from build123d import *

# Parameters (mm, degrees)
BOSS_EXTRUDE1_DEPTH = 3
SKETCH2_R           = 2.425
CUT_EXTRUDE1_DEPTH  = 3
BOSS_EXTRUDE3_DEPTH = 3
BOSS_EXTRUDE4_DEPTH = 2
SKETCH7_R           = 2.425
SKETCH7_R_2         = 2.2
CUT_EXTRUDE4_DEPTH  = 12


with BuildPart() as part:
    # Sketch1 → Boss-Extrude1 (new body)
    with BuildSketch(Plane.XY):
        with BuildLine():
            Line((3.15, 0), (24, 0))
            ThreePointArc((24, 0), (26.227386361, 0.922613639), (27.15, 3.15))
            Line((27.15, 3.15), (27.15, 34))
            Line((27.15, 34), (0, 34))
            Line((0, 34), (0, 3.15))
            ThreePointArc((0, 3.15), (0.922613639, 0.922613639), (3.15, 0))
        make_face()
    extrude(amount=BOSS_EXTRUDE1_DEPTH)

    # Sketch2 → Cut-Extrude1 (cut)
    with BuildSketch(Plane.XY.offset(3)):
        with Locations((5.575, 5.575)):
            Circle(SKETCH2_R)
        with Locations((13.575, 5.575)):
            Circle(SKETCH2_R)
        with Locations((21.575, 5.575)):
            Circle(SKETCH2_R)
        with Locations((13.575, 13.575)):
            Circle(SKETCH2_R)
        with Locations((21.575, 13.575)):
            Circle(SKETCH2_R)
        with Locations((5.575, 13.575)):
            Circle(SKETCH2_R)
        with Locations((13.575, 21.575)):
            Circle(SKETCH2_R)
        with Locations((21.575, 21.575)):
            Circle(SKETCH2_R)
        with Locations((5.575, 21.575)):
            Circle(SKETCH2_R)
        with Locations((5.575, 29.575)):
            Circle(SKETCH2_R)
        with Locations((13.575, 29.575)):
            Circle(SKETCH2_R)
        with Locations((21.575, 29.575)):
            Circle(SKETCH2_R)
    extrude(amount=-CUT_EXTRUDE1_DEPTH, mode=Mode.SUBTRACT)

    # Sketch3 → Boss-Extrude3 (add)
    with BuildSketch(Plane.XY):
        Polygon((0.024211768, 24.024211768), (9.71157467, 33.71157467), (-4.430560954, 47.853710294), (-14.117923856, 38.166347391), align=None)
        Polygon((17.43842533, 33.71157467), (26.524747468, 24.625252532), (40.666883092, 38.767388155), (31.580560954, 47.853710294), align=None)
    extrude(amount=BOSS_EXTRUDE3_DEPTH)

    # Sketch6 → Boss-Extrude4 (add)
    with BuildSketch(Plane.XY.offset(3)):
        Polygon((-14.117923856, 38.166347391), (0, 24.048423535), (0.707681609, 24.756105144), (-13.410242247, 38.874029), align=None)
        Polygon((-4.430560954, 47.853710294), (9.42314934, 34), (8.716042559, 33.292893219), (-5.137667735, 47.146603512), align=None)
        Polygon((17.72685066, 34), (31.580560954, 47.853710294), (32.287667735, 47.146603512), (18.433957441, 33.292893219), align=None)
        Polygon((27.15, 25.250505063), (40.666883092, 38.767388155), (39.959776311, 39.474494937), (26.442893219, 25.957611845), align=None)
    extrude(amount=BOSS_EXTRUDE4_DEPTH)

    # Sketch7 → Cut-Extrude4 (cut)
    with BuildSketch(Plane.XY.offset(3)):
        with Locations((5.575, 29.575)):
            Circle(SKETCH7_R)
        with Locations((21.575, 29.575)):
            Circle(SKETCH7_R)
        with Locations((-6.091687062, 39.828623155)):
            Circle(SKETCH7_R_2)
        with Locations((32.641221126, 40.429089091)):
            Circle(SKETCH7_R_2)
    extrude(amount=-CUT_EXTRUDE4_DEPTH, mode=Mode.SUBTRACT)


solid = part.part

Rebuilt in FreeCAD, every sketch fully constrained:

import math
import FreeCAD as App
import Part
import Sketcher

V = App.Vector


def add_polygon(sketch, points):
    """Adds a closed chain of lines whose ends are joined by coincident constraints."""
    first, n = sketch.GeometryCount, len(points)
    for a, b in zip(points, points[1:] + points[:1]):
        sketch.addGeometry(Part.LineSegment(App.Vector(*a, 0), App.Vector(*b, 0)), False)
    for i in range(n):
        sketch.addConstraint(Sketcher.Constraint("Coincident", first + i, 2, first + (i + 1) % n, 1))

doc = App.newDocument("Part")
body = doc.addObject("PartDesign::Body", "Body")

sketch1 = body.newObject("Sketcher::SketchObject", "Sketch")
sketch1.AttachmentSupport = (doc.getObject("XY_Plane"), [""])
sketch1.MapMode = "FlatFace"
sketch1.addGeometry([
    Part.LineSegment(V(3.1, 0, 0), V(24, 0, 0)),
    Part.ArcOfCircle(Part.Circle(V(24, 3.1, 0), V(0, 0, 1), 3.1), math.radians(-90), math.radians(0)),
    Part.LineSegment(V(27.1, 3.1, 0), V(27.1, 34, 0)),
    Part.LineSegment(V(27.1, 34, 0), V(0, 34, 0)),
    Part.LineSegment(V(0, 34, 0), V(0, 3.1, 0)),
    Part.ArcOfCircle(Part.Circle(V(3.1, 3.1, 0), V(0, 0, 1), 3.1), math.radians(180), math.radians(270)),
], False)
sketch1.addConstraint([
    Sketcher.Constraint("Tangent", 0, 2, 1, 1),
    Sketcher.Constraint("Tangent", 1, 2, 2, 1),
    Sketcher.Constraint("Coincident", 2, 2, 3, 1),
    Sketcher.Constraint("Coincident", 3, 2, 4, 1),
    Sketcher.Constraint("Tangent", 4, 2, 5, 1),
    Sketcher.Constraint("Tangent", 5, 2, 0, 1),
    Sketcher.Constraint("Horizontal", 0),
    Sketcher.Constraint("Vertical", 2),
    Sketcher.Constraint("Horizontal", 3),
    Sketcher.Constraint("Vertical", 4),
    Sketcher.Constraint("Equal", 1, 5),
    Sketcher.Constraint("PointOnObject", 0, 2, -1),
    Sketcher.Constraint("PointOnObject", 3, 2, -2),
    Sketcher.Constraint("Radius", 1, 3.15),
    Sketcher.Constraint("DistanceX", -1, 1, 1, 3, 24.0),
    Sketcher.Constraint("DistanceY", -1, 1, 2, 2, 34.0),
])
pad1 = body.newObject("PartDesign::Pad", "Pad")
pad1.Profile = sketch1
pad1.Length = 3

sketch2 = body.newObject("Sketcher::SketchObject", "Sketch001")
sketch2.AttachmentSupport = (doc.getObject("XY_Plane"), [""])
sketch2.MapMode = "FlatFace"
sketch2.AttachmentOffset = App.Placement(V(0, 0, 3), App.Rotation())
sketch2.addGeometry([
    Part.Circle(V(5.6, 5.6, 0), V(0, 0, 1), 2.4),
    Part.Circle(V(13.6, 5.6, 0), V(0, 0, 1), 2.4),
    Part.Circle(V(21.6, 5.6, 0), V(0, 0, 1), 2.4),
    Part.Circle(V(13.6, 13.6, 0), V(0, 0, 1), 2.4),
    Part.Circle(V(21.6, 13.6, 0), V(0, 0, 1), 2.4),
    Part.Circle(V(5.6, 13.6, 0), V(0, 0, 1), 2.4),
    Part.Circle(V(13.6, 21.6, 0), V(0, 0, 1), 2.4),
    Part.Circle(V(21.6, 21.6, 0), V(0, 0, 1), 2.4),
    Part.Circle(V(5.6, 21.6, 0), V(0, 0, 1), 2.4),
    Part.Circle(V(5.6, 29.6, 0), V(0, 0, 1), 2.4),
    Part.Circle(V(13.6, 29.6, 0), V(0, 0, 1), 2.4),
    Part.Circle(V(21.6, 29.6, 0), V(0, 0, 1), 2.4),
], False)
sketch2.addConstraint([
    Sketcher.Constraint("Equal", 0, 1),
    Sketcher.Constraint("Equal", 1, 2),
    Sketcher.Constraint("Equal", 2, 3),
    Sketcher.Constraint("Equal", 3, 4),
    Sketcher.Constraint("Equal", 4, 5),
    Sketcher.Constraint("Equal", 5, 6),
    Sketcher.Constraint("Equal", 6, 7),
    Sketcher.Constraint("Equal", 7, 8),
    Sketcher.Constraint("Equal", 8, 9),
    Sketcher.Constraint("Equal", 9, 10),
    Sketcher.Constraint("Equal", 10, 11),
    Sketcher.Constraint("Horizontal", 0, 3, 1, 3),
    Sketcher.Constraint("Horizontal", 1, 3, 2, 3),
    Sketcher.Constraint("Horizontal", 3, 3, 4, 3),
    Sketcher.Constraint("Horizontal", 4, 3, 5, 3),
    Sketcher.Constraint("Horizontal", 6, 3, 7, 3),
    Sketcher.Constraint("Horizontal", 7, 3, 8, 3),
    Sketcher.Constraint("Horizontal", 9, 3, 10, 3),
    Sketcher.Constraint("Horizontal", 10, 3, 11, 3),
    Sketcher.Constraint("Vertical", 1, 3, 3, 3),
    Sketcher.Constraint("Vertical", 2, 3, 4, 3),
    Sketcher.Constraint("Vertical", 0, 3, 5, 3),
    Sketcher.Constraint("Vertical", 3, 3, 6, 3),
    Sketcher.Constraint("Vertical", 4, 3, 7, 3),
    Sketcher.Constraint("Vertical", 5, 3, 8, 3),
    Sketcher.Constraint("Vertical", 8, 3, 9, 3),
    Sketcher.Constraint("Vertical", 6, 3, 10, 3),
    Sketcher.Constraint("Vertical", 7, 3, 11, 3),
    Sketcher.Constraint("Diameter", 0, 4.85),
    Sketcher.Constraint("DistanceX", 0, 3, 1, 3, 8.0),
    Sketcher.Constraint("DistanceX", 1, 3, 2, 3, 8.0),
    Sketcher.Constraint("DistanceY", 1, 3, 3, 3, 8.0),
    Sketcher.Constraint("DistanceY", 3, 3, 6, 3, 8.0),
    Sketcher.Constraint("DistanceY", 8, 3, 9, 3, 8.0),
    Sketcher.Constraint("DistanceX", -1, 1, 0, 3, 5.575),
    Sketcher.Constraint("DistanceY", -1, 1, 0, 3, 5.575),
])
pocket1 = body.newObject("PartDesign::Pocket", "Pocket")
pocket1.Profile = sketch2
pocket1.Length = 3

sketch3 = body.newObject("Sketcher::SketchObject", "Sketch002")
sketch3.AttachmentSupport = (doc.getObject("XY_Plane"), [""])
sketch3.MapMode = "FlatFace"
add_polygon(sketch3, [(0, 24), (10, 34), (-4, 48), (-14, 38)])
add_polygon(sketch3, [(17, 34), (27, 25), (41, 39), (32, 48)])
sketch3.addConstraint([
    Sketcher.Constraint("Perpendicular", 0, 1),
    Sketcher.Constraint("Perpendicular", 1, 2),
    Sketcher.Constraint("Perpendicular", 2, 3),
    Sketcher.Constraint("Parallel", 3, 4),
    Sketcher.Constraint("Perpendicular", 4, 5),
    Sketcher.Constraint("Perpendicular", 5, 6),
    Sketcher.Constraint("Perpendicular", 6, 7),
    Sketcher.Constraint("Horizontal", 1, 2, 6, 2),
    Sketcher.Constraint("Horizontal", 0, 2, 7, 2),
    Sketcher.Constraint("Equal", 3, 5),
    Sketcher.Constraint("Distance", 1, 20.0),
    Sketcher.Constraint("Distance", 0, 13.7),
    Sketcher.Constraint("Distance", 4, 12.85),
    Sketcher.Constraint("DistanceX", 1, 2, -1, 1, 4.430561),
    Sketcher.Constraint("DistanceY", -1, 1, 1, 2, 47.85371),
    Sketcher.Constraint("DistanceX", -1, 1, 6, 2, 31.580561),
])
pad2 = body.newObject("PartDesign::Pad", "Pad001")
pad2.Profile = sketch3
pad2.Length = 3

sketch4 = body.newObject("Sketcher::SketchObject", "Sketch003")
sketch4.AttachmentSupport = (doc.getObject("XY_Plane"), [""])
sketch4.MapMode = "FlatFace"
sketch4.AttachmentOffset = App.Placement(V(0, 0, 3), App.Rotation())
add_polygon(sketch4, [(-14.1, 38.2), (0, 24), (0.7, 24.8), (-13.4, 38.9)])
add_polygon(sketch4, [(9.4, 34), (-4.4, 47.9), (-5.1, 47.1), (8.7, 33.3)])
add_polygon(sketch4, [(31.6, 47.9), (17.7, 34), (18.4, 33.3), (32.3, 47.1)])
add_polygon(sketch4, [(27.1, 25.3), (40.7, 38.8), (40, 39.5), (26.4, 26)])
sketch4.addConstraint([
    Sketcher.Constraint("PointOnObject", 0, 2, -2),
    Sketcher.Constraint("Perpendicular", 0, 1),
    Sketcher.Constraint("Perpendicular", 1, 2),
    Sketcher.Constraint("Perpendicular", 2, 3),
    Sketcher.Constraint("Perpendicular", 3, 4),
    Sketcher.Constraint("Perpendicular", 4, 5),
    Sketcher.Constraint("Perpendicular", 5, 6),
    Sketcher.Constraint("Perpendicular", 6, 7),
    Sketcher.Constraint("Parallel", 7, 8),
    Sketcher.Constraint("Perpendicular", 8, 9),
    Sketcher.Constraint("Perpendicular", 9, 10),
    Sketcher.Constraint("Perpendicular", 10, 11),
    Sketcher.Constraint("Perpendicular", 11, 12),
    Sketcher.Constraint("Perpendicular", 12, 13),
    Sketcher.Constraint("Perpendicular", 13, 14),
    Sketcher.Constraint("Perpendicular", 14, 15),
    Sketcher.Constraint("Horizontal", 7, 2, 8, 2),
    Sketcher.Constraint("Horizontal", 6, 2, 9, 2),
    Sketcher.Constraint("Horizontal", 5, 2, 10, 2),
    Sketcher.Constraint("Equal", 6, 8),
    Sketcher.Constraint("Equal", 11, 13),
    Sketcher.Constraint("Distance", 5, 1.0),
    Sketcher.Constraint("DistanceY", -1, 1, 7, 2, 34.0),
    Sketcher.Constraint("DistanceX", -1, 1, 15, 2, 27.15),
    Sketcher.Constraint("DistanceY", 1, 2, 5, 2, 22.390498),
    Sketcher.Constraint("DistanceX", 7, 2, 8, 2, 8.303701),
    Sketcher.Constraint("DistanceY", 9, 2, 13, 2, 6.181602),
    Sketcher.Constraint("Distance", 0, 19.965759),
    Sketcher.Constraint("Distance", 12, 19.115759),
    Sketcher.Constraint("DistanceX", -1, 1, 1, 2, 0.707682),
    Sketcher.Constraint("DistanceY", -1, 1, 2, 2, 38.874029),
    Sketcher.Constraint("DistanceX", 4, 2, -1, 1, 4.430561),
])
pad3 = body.newObject("PartDesign::Pad", "Pad002")
pad3.Profile = sketch4
pad3.Length = 2

sketch5 = body.newObject("Sketcher::SketchObject", "Sketch004")
sketch5.AttachmentSupport = (doc.getObject("XY_Plane"), [""])
sketch5.MapMode = "FlatFace"
sketch5.AttachmentOffset = App.Placement(V(0, 0, 3), App.Rotation())
sketch5.addGeometry([
    Part.Circle(V(5.6, 29.6, 0), V(0, 0, 1), 2.4),
    Part.Circle(V(21.6, 29.6, 0), V(0, 0, 1), 2.4),
    Part.Circle(V(-6.1, 39.8, 0), V(0, 0, 1), 2.2),
    Part.Circle(V(32.6, 40.4, 0), V(0, 0, 1), 2.2),
], False)
sketch5.addConstraint([
    Sketcher.Constraint("Equal", 0, 1),
    Sketcher.Constraint("Equal", 2, 3),
    Sketcher.Constraint("Horizontal", 0, 3, 1, 3),
    Sketcher.Constraint("Diameter", 2, 4.4),
    Sketcher.Constraint("Diameter", 0, 4.85),
    Sketcher.Constraint("DistanceX", 0, 3, 1, 3, 16.0),
    Sketcher.Constraint("DistanceX", -1, 1, 0, 3, 5.575),
    Sketcher.Constraint("DistanceY", -1, 1, 0, 3, 29.575),
    Sketcher.Constraint("DistanceX", -1, 1, 3, 3, 32.641221),
    Sketcher.Constraint("DistanceY", -1, 1, 3, 3, 40.429089),
    Sketcher.Constraint("DistanceX", 2, 3, 3, 3, 38.732908),
    Sketcher.Constraint("DistanceY", -1, 1, 2, 3, 39.828623),
])
pocket2 = body.newObject("PartDesign::Pocket", "Pocket001")
pocket2.Profile = sketch5
pocket2.Length = 12

doc.recompute()
